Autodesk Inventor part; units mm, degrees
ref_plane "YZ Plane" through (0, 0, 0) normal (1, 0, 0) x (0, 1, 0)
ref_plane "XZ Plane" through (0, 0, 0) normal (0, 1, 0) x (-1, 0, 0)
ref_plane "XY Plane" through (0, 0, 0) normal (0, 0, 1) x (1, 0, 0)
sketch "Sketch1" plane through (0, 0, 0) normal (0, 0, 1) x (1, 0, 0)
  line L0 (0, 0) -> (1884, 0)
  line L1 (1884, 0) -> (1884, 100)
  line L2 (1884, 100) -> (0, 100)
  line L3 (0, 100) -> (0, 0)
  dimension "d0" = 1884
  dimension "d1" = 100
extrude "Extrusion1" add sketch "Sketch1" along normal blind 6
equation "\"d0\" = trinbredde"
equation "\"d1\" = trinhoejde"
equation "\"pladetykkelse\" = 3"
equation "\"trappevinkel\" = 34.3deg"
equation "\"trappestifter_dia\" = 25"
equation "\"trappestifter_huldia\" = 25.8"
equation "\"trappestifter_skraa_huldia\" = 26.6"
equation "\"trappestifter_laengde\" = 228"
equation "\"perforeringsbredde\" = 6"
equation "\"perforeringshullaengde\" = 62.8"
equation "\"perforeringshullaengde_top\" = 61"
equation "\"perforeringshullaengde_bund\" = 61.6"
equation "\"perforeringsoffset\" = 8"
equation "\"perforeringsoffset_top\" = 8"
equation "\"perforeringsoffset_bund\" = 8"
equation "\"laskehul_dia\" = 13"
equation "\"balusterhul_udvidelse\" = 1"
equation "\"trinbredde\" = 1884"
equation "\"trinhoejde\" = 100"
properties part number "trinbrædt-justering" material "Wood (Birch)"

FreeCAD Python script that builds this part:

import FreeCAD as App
import Part
import Sketcher

V = App.Vector
Q = App.Units.Quantity


def add_polygon(sketch, points):
    """Adds a closed chain of lines whose ends are joined by coincident constraints."""
    first, n = sketch.GeometryCount, len(points)
    for a, b in zip(points, points[1:] + points[:1]):
        sketch.addGeometry(Part.LineSegment(App.Vector(*a, 0), App.Vector(*b, 0)), False)
    for i in range(n):
        sketch.addConstraint(Sketcher.Constraint("Coincident", first + i, 2, first + (i + 1) % n, 1))

doc = App.newDocument("Part")
params = doc.addObject("Spreadsheet::Sheet", "Params")
for row, (alias, value) in enumerate([
    ("sketch1_width", "1884 mm"),
    ("sketch1_height", "100 mm"),
    ("pad1_length", "6 mm"),
], start=1):
    params.set(f"A{row}", alias)
    params.set(f"B{row}", "=" + value)
    params.setAlias(f"B{row}", alias)

body = doc.addObject("PartDesign::Body", "Body")

# Sketch on XY plane
sketch1 = doc.addObject("Sketcher::SketchObject", "Sketch")
body.addObject(sketch1)
sketch1.AttachmentSupport = (doc.XY_Plane, [""])
sketch1.MapMode = "FlatFace"
add_polygon(sketch1, [(0, 100), (0, 0), (1884, 0), (1884, 100)])  # lines 0-3
sketch1.addConstraint([
    Sketcher.Constraint("Vertical", 0),
    Sketcher.Constraint("Horizontal", 1),
    Sketcher.Constraint("Vertical", 2),
    Sketcher.Constraint("Horizontal", 3),
    Sketcher.Constraint("Coincident", 0, 2, -1, 1),
    Sketcher.Constraint("DistanceX", 1, 1, 1, 2, Q("1884 mm")),
    Sketcher.Constraint("DistanceY", 0, 2, 0, 1, Q("100 mm")),
])
sketch1.setExpression("Constraints[9]", "Params.sketch1_width")
sketch1.setExpression("Constraints[10]", "Params.sketch1_height")
pad1 = doc.addObject("PartDesign::Pad", "Pad")
body.addObject(pad1)
pad1.Profile = sketch1
pad1.setExpression("Length", "Params.pad1_length")

doc.recompute()
